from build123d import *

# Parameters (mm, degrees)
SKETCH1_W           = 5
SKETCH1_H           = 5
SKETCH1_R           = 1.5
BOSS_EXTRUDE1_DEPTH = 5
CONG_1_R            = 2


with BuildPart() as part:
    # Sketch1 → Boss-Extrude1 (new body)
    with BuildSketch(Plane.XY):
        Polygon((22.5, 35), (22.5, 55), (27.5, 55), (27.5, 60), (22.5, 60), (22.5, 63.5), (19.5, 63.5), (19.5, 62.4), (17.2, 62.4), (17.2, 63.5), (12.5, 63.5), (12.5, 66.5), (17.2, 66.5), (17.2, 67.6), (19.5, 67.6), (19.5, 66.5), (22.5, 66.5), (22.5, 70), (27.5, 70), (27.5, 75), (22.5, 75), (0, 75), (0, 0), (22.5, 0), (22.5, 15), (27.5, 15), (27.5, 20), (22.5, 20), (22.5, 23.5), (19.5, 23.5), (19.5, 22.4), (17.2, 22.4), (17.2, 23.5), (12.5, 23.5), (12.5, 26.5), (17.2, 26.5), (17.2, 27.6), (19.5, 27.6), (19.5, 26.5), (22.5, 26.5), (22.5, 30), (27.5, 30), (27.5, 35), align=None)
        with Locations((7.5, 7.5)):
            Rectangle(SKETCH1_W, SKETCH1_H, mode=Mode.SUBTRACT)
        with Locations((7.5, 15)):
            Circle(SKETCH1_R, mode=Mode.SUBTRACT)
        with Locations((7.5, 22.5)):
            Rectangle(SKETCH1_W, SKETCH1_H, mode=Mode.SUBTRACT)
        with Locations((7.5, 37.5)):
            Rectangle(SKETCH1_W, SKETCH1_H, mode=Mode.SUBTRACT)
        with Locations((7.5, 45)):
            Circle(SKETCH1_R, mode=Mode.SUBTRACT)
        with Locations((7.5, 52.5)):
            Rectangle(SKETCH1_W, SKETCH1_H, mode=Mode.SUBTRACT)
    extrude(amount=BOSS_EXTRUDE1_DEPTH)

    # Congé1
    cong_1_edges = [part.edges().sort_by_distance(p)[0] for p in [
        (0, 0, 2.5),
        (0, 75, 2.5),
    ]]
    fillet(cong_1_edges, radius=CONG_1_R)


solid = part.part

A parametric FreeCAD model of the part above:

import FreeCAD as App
import Part
import Sketcher

V = App.Vector
Q = App.Units.Quantity


def edges_at(feature, points):
    """Names of the edges that pass closest to the given points."""
    edges = feature.Shape.Edges
    near = lambda p: min(range(len(edges)), key=lambda i: edges[i].distToShape(Part.Vertex(*p))[0])
    return sorted({f"Edge{near(p) + 1}" for p in points})

doc = App.newDocument("Part")
body = doc.addObject("PartDesign::Body", "Body")

sketch1 = body.newObject("Sketcher::SketchObject", "Sketch")
sketch1.AttachmentSupport = (doc.getObject("XY_Plane"), [""])
sketch1.MapMode = "FlatFace"
sketch1.addGeometry(Part.LineSegment(V(22.5, 35, 0), V(22.5, 55, 0)), False)
sketch1.addGeometry(Part.LineSegment(V(22.5, 55, 0), V(27.5, 55, 0)), False)
sketch1.addGeometry(Part.LineSegment(V(27.5, 55, 0), V(27.5, 60, 0)), False)
sketch1.addGeometry(Part.LineSegment(V(27.5, 60, 0), V(22.5, 60, 0)), False)
sketch1.addGeometry(Part.LineSegment(V(22.5, 60, 0), V(22.5, 63.5, 0)), False)
sketch1.addGeometry(Part.LineSegment(V(22.5, 63.5, 0), V(19.5, 63.5, 0)), False)
sketch1.addGeometry(Part.LineSegment(V(19.5, 63.5, 0), V(19.5, 62.4, 0)), False)
sketch1.addGeometry(Part.LineSegment(V(19.5, 62.4, 0), V(17.2, 62.4, 0)), False)
sketch1.addGeometry(Part.LineSegment(V(17.2, 62.4, 0), V(17.2, 63.5, 0)), False)
sketch1.addGeometry(Part.LineSegment(V(17.2, 63.5, 0), V(12.5, 63.5, 0)), False)
sketch1.addGeometry(Part.LineSegment(V(12.5, 63.5, 0), V(12.5, 66.5, 0)), False)
sketch1.addGeometry(Part.LineSegment(V(12.5, 66.5, 0), V(17.2, 66.5, 0)), False)
sketch1.addGeometry(Part.LineSegment(V(17.2, 66.5, 0), V(17.2, 67.6, 0)), False)
sketch1.addGeometry(Part.LineSegment(V(17.2, 67.6, 0), V(19.5, 67.6, 0)), False)
sketch1.addGeometry(Part.LineSegment(V(19.5, 67.6, 0), V(19.5, 66.5, 0)), False)
sketch1.addGeometry(Part.LineSegment(V(19.5, 66.5, 0), V(22.5, 66.5, 0)), False)
sketch1.addGeometry(Part.LineSegment(V(22.5, 66.5, 0), V(22.5, 70, 0)), False)
sketch1.addGeometry(Part.LineSegment(V(22.5, 70, 0), V(27.5, 70, 0)), False)
sketch1.addGeometry(Part.LineSegment(V(27.5, 70, 0), V(27.5, 75, 0)), False)
sketch1.addGeometry(Part.LineSegment(V(27.5, 75, 0), V(0, 75, 0)), False)
sketch1.addGeometry(Part.LineSegment(V(0, 75, 0), V(0, 0, 0)), False)
sketch1.addGeometry(Part.LineSegment(V(0, 0, 0), V(22.5, 0, 0)), False)
sketch1.addGeometry(Part.LineSegment(V(22.5, 0, 0), V(22.5, 15, 0)), False)
sketch1.addGeometry(Part.LineSegment(V(22.5, 15, 0), V(27.5, 15, 0)), False)
sketch1.addGeometry(Part.LineSegment(V(27.5, 15, 0), V(27.5, 20, 0)), False)
sketch1.addGeometry(Part.LineSegment(V(27.5, 20, 0), V(22.5, 20, 0)), False)
sketch1.addGeometry(Part.LineSegment(V(22.5, 20, 0), V(22.5, 23.5, 0)), False)
sketch1.addGeometry(Part.LineSegment(V(22.5, 23.5, 0), V(19.5, 23.5, 0)), False)
sketch1.addGeometry(Part.LineSegment(V(19.5, 23.5, 0), V(19.5, 22.4, 0)), False)
sketch1.addGeometry(Part.LineSegment(V(19.5, 22.4, 0), V(17.2, 22.4, 0)), False)
sketch1.addGeometry(Part.LineSegment(V(17.2, 22.4, 0), V(17.2, 23.5, 0)), False)
sketch1.addGeometry(Part.LineSegment(V(17.2, 23.5, 0), V(12.5, 23.5, 0)), False)
sketch1.addGeometry(Part.LineSegment(V(12.5, 23.5, 0), V(12.5, 26.5, 0)), False)
sketch1.addGeometry(Part.LineSegment(V(12.5, 26.5, 0), V(17.2, 26.5, 0)), False)
sketch1.addGeometry(Part.LineSegment(V(17.2, 26.5, 0), V(17.2, 27.6, 0)), False)
sketch1.addGeometry(Part.LineSegment(V(17.2, 27.6, 0), V(19.5, 27.6, 0)), False)
sketch1.addGeometry(Part.LineSegment(V(19.5, 27.6, 0), V(19.5, 26.5, 0)), False)
sketch1.addGeometry(Part.LineSegment(V(19.5, 26.5, 0), V(22.5, 26.5, 0)), False)
sketch1.addGeometry(Part.LineSegment(V(22.5, 26.5, 0), V(22.5, 30, 0)), False)
sketch1.addGeometry(Part.LineSegment(V(22.5, 30, 0), V(27.5, 30, 0)), False)
sketch1.addGeometry(Part.LineSegment(V(27.5, 30, 0), V(27.5, 35, 0)), False)
sketch1.addGeometry(Part.LineSegment(V(27.5, 35, 0), V(22.5, 35, 0)), False)
sketch1.addGeometry(Part.LineSegment(V(10, 5, 0), V(5, 5, 0)), False)
sketch1.addGeometry(Part.LineSegment(V(5, 5, 0), V(5, 10, 0)), False)
sketch1.addGeometry(Part.LineSegment(V(5, 10, 0), V(10, 10, 0)), False)
sketch1.addGeometry(Part.LineSegment(V(10, 10, 0), V(10, 5, 0)), False)
sketch1.addGeometry(Part.Circle(V(7.5, 15, 0), V(0, 0, 1), 1.5), False)
sketch1.addGeometry(Part.LineSegment(V(10, 20, 0), V(5, 20, 0)), False)
sketch1.addGeometry(Part.LineSegment(V(5, 20, 0), V(5, 25, 0)), False)
sketch1.addGeometry(Part.LineSegment(V(5, 25, 0), V(10, 25, 0)), False)
sketch1.addGeometry(Part.LineSegment(V(10, 25, 0), V(10, 20, 0)), False)
sketch1.addGeometry(Part.LineSegment(V(10, 35, 0), V(5, 35, 0)), False)
sketch1.addGeometry(Part.LineSegment(V(5, 35, 0), V(5, 40, 0)), False)
sketch1.addGeometry(Part.LineSegment(V(5, 40, 0), V(10, 40, 0)), False)
sketch1.addGeometry(Part.LineSegment(V(10, 40, 0), V(10, 35, 0)), False)
sketch1.addGeometry(Part.Circle(V(7.5, 45, 0), V(0, 0, 1), 1.5), False)
sketch1.addGeometry(Part.LineSegment(V(10, 50, 0), V(5, 50, 0)), False)
sketch1.addGeometry(Part.LineSegment(V(5, 50, 0), V(5, 55, 0)), False)
sketch1.addGeometry(Part.LineSegment(V(5, 55, 0), V(10, 55, 0)), False)
sketch1.addGeometry(Part.LineSegment(V(10, 55, 0), V(10, 50, 0)), False)
sketch1.addConstraint(Sketcher.Constraint("Coincident", 0, 2, 1, 1))
sketch1.addConstraint(Sketcher.Constraint("Coincident", 1, 2, 2, 1))
sketch1.addConstraint(Sketcher.Constraint("Coincident", 2, 2, 3, 1))
sketch1.addConstraint(Sketcher.Constraint("Coincident", 3, 2, 4, 1))
sketch1.addConstraint(Sketcher.Constraint("Coincident", 4, 2, 5, 1))
sketch1.addConstraint(Sketcher.Constraint("Coincident", 5, 2, 6, 1))
sketch1.addConstraint(Sketcher.Constraint("Coincident", 6, 2, 7, 1))
sketch1.addConstraint(Sketcher.Constraint("Coincident", 7, 2, 8, 1))
sketch1.addConstraint(Sketcher.Constraint("Coincident", 8, 2, 9, 1))
sketch1.addConstraint(Sketcher.Constraint("Coincident", 9, 2, 10, 1))
sketch1.addConstraint(Sketcher.Constraint("Coincident", 10, 2, 11, 1))
sketch1.addConstraint(Sketcher.Constraint("Coincident", 11, 2, 12, 1))
sketch1.addConstraint(Sketcher.Constraint("Coincident", 12, 2, 13, 1))
sketch1.addConstraint(Sketcher.Constraint("Coincident", 13, 2, 14, 1))
sketch1.addConstraint(Sketcher.Constraint("Coincident", 14, 2, 15, 1))
sketch1.addConstraint(Sketcher.Constraint("Coincident", 15, 2, 16, 1))
sketch1.addConstraint(Sketcher.Constraint("Coincident", 16, 2, 17, 1))
sketch1.addConstraint(Sketcher.Constraint("Coincident", 17, 2, 18, 1))
sketch1.addConstraint(Sketcher.Constraint("Coincident", 18, 2, 19, 1))
sketch1.addConstraint(Sketcher.Constraint("Coincident", 19, 2, 20, 1))
sketch1.addConstraint(Sketcher.Constraint("Coincident", 20, 2, 21, 1))
sketch1.addConstraint(Sketcher.Constraint("Coincident", 21, 2, 22, 1))
sketch1.addConstraint(Sketcher.Constraint("Coincident", 22, 2, 23, 1))
sketch1.addConstraint(Sketcher.Constraint("Coincident", 23, 2, 24, 1))
sketch1.addConstraint(Sketcher.Constraint("Coincident", 24, 2, 25, 1))
sketch1.addConstraint(Sketcher.Constraint("Coincident", 25, 2, 26, 1))
sketch1.addConstraint(Sketcher.Constraint("Coincident", 26, 2, 27, 1))
sketch1.addConstraint(Sketcher.Constraint("Coincident", 27, 2, 28, 1))
sketch1.addConstraint(Sketcher.Constraint("Coincident", 28, 2, 29, 1))
sketch1.addConstraint(Sketcher.Constraint("Coincident", 29, 2, 30, 1))
sketch1.addConstraint(Sketcher.Constraint("Coincident", 30, 2, 31, 1))
sketch1.addConstraint(Sketcher.Constraint("Coincident", 31, 2, 32, 1))
sketch1.addConstraint(Sketcher.Constraint("Coincident", 32, 2, 33, 1))
sketch1.addConstraint(Sketcher.Constraint("Coincident", 33, 2, 34, 1))
sketch1.addConstraint(Sketcher.Constraint("Coincident", 34, 2, 35, 1))
sketch1.addConstraint(Sketcher.Constraint("Coincident", 35, 2, 36, 1))
sketch1.addConstraint(Sketcher.Constraint("Coincident", 36, 2, 37, 1))
sketch1.addConstraint(Sketcher.Constraint("Coincident", 37, 2, 38, 1))
sketch1.addConstraint(Sketcher.Constraint("Coincident", 38, 2, 39, 1))
sketch1.addConstraint(Sketcher.Constraint("Coincident", 39, 2, 40, 1))
sketch1.addConstraint(Sketcher.Constraint("Coincident", 40, 2, 41, 1))
sketch1.addConstraint(Sketcher.Constraint("Coincident", 41, 2, 0, 1))
sketch1.addConstraint(Sketcher.Constraint("Coincident", 42, 2, 43, 1))
sketch1.addConstraint(Sketcher.Constraint("Coincident", 43, 2, 44, 1))
sketch1.addConstraint(Sketcher.Constraint("Coincident", 44, 2, 45, 1))
sketch1.addConstraint(Sketcher.Constraint("Coincident", 45, 2, 42, 1))
sketch1.addConstraint(Sketcher.Constraint("Coincident", 47, 2, 48, 1))
sketch1.addConstraint(Sketcher.Constraint("Coincident", 48, 2, 49, 1))
sketch1.addConstraint(Sketcher.Constraint("Coincident", 49, 2, 50, 1))
sketch1.addConstraint(Sketcher.Constraint("Coincident", 50, 2, 47, 1))
sketch1.addConstraint(Sketcher.Constraint("Coincident", 51, 2, 52, 1))
sketch1.addConstraint(Sketcher.Constraint("Coincident", 52, 2, 53, 1))
sketch1.addConstraint(Sketcher.Constraint("Coincident", 53, 2, 54, 1))
sketch1.addConstraint(Sketcher.Constraint("Coincident", 54, 2, 51, 1))
sketch1.addConstraint(Sketcher.Constraint("Coincident", 56, 2, 57, 1))
sketch1.addConstraint(Sketcher.Constraint("Coincident", 57, 2, 58, 1))
sketch1.addConstraint(Sketcher.Constraint("Coincident", 58, 2, 59, 1))
sketch1.addConstraint(Sketcher.Constraint("Coincident", 59, 2, 56, 1))
sketch1.addConstraint(Sketcher.Constraint("Vertical", 0))
sketch1.addConstraint(Sketcher.Constraint("Horizontal", 1))
sketch1.addConstraint(Sketcher.Constraint("Vertical", 2))
sketch1.addConstraint(Sketcher.Constraint("Horizontal", 3))
sketch1.addConstraint(Sketcher.Constraint("Vertical", 4))
sketch1.addConstraint(Sketcher.Constraint("Horizontal", 5))
sketch1.addConstraint(Sketcher.Constraint("Vertical", 6))
sketch1.addConstraint(Sketcher.Constraint("Horizontal", 7))
sketch1.addConstraint(Sketcher.Constraint("Vertical", 8))
sketch1.addConstraint(Sketcher.Constraint("Horizontal", 9))
sketch1.addConstraint(Sketcher.Constraint("Vertical", 10))
sketch1.addConstraint(Sketcher.Constraint("Horizontal", 11))
sketch1.addConstraint(Sketcher.Constraint("Vertical", 12))
sketch1.addConstraint(Sketcher.Constraint("Horizontal", 13))
sketch1.addConstraint(Sketcher.Constraint("Vertical", 14))
sketch1.addConstraint(Sketcher.Constraint("Horizontal", 15))
sketch1.addConstraint(Sketcher.Constraint("Vertical", 16))
sketch1.addConstraint(Sketcher.Constraint("Horizontal", 17))
sketch1.addConstraint(Sketcher.Constraint("Vertical", 18))
sketch1.addConstraint(Sketcher.Constraint("Horizontal", 19))
sketch1.addConstraint(Sketcher.Constraint("Vertical", 20))
sketch1.addConstraint(Sketcher.Constraint("Horizontal", 21))
sketch1.addConstraint(Sketcher.Constraint("Vertical", 22))
sketch1.addConstraint(Sketcher.Constraint("Horizontal", 23))
sketch1.addConstraint(Sketcher.Constraint("Vertical", 24))
sketch1.addConstraint(Sketcher.Constraint("Horizontal", 25))
sketch1.addConstraint(Sketcher.Constraint("Vertical", 26))
sketch1.addConstraint(Sketcher.Constraint("Horizontal", 27))
sketch1.addConstraint(Sketcher.Constraint("Vertical", 28))
sketch1.addConstraint(Sketcher.Constraint("Horizontal", 29))
sketch1.addConstraint(Sketcher.Constraint("Vertical", 30))
sketch1.addConstraint(Sketcher.Constraint("Horizontal", 31))
sketch1.addConstraint(Sketcher.Constraint("Vertical", 32))
sketch1.addConstraint(Sketcher.Constraint("Horizontal", 33))
sketch1.addConstraint(Sketcher.Constraint("Vertical", 34))
sketch1.addConstraint(Sketcher.Constraint("Horizontal", 35))
sketch1.addConstraint(Sketcher.Constraint("Vertical", 36))
sketch1.addConstraint(Sketcher.Constraint("Horizontal", 37))
sketch1.addConstraint(Sketcher.Constraint("Vertical", 38))
sketch1.addConstraint(Sketcher.Constraint("Horizontal", 39))
sketch1.addConstraint(Sketcher.Constraint("Vertical", 40))
sketch1.addConstraint(Sketcher.Constraint("Horizontal", 41))
sketch1.addConstraint(Sketcher.Constraint("Horizontal", 42))
sketch1.addConstraint(Sketcher.Constraint("Vertical", 43))
sketch1.addConstraint(Sketcher.Constraint("Horizontal", 44))
sketch1.addConstraint(Sketcher.Constraint("Vertical", 45))
sketch1.addConstraint(Sketcher.Constraint("Horizontal", 47))
sketch1.addConstraint(Sketcher.Constraint("Vertical", 48))
sketch1.addConstraint(Sketcher.Constraint("Horizontal", 49))
sketch1.addConstraint(Sketcher.Constraint("Vertical", 50))
sketch1.addConstraint(Sketcher.Constraint("Horizontal", 51))
sketch1.addConstraint(Sketcher.Constraint("Vertical", 52))
sketch1.addConstraint(Sketcher.Constraint("Horizontal", 53))
sketch1.addConstraint(Sketcher.Constraint("Vertical", 54))
sketch1.addConstraint(Sketcher.Constraint("Horizontal", 56))
sketch1.addConstraint(Sketcher.Constraint("Vertical", 57))
sketch1.addConstraint(Sketcher.Constraint("Horizontal", 58))
sketch1.addConstraint(Sketcher.Constraint("Vertical", 59))
sketch1.addConstraint(Sketcher.Constraint("Coincident", 20, 2, -1, 1))
sketch1.addConstraint(Sketcher.Constraint("Equal", 46, 55))
sketch1.addConstraint(Sketcher.Constraint("Horizontal", 5, 2, 8, 2))
sketch1.addConstraint(Sketcher.Constraint("Horizontal", 11, 2, 14, 2))
sketch1.addConstraint(Sketcher.Constraint("Horizontal", 46, 3, 22, 2))
sketch1.addConstraint(Sketcher.Constraint("Horizontal", 27, 2, 30, 2))
sketch1.addConstraint(Sketcher.Constraint("Horizontal", 33, 2, 36, 2))
sketch1.addConstraint(Sketcher.Constraint("Horizontal", 25, 2, 47, 2))
sketch1.addConstraint(Sketcher.Constraint("Horizontal", 41, 2, 51, 2))
sketch1.addConstraint(Sketcher.Constraint("Horizontal", 1, 2, 57, 2))
sketch1.addConstraint(Sketcher.Constraint("Vertical", 46, 3, 55, 3))
sketch1.addConstraint(Sketcher.Constraint("Vertical", 0, 2, 3, 2))
sketch1.addConstraint(Sketcher.Constraint("Vertical", 8, 2, 11, 2))
sketch1.addConstraint(Sketcher.Constraint("Vertical", 6, 2, 13, 2))
sketch1.addConstraint(Sketcher.Constraint("Vertical", 4, 2, 15, 2))
sketch1.addConstraint(Sketcher.Constraint("Vertical", 2, 2, 17, 2))
sketch1.addConstraint(Sketcher.Constraint("Vertical", 16, 2, 21, 2))
sketch1.addConstraint(Sketcher.Constraint("Vertical", 18, 2, 23, 2))
sketch1.addConstraint(Sketcher.Constraint("Vertical", 22, 2, 25, 2))
sketch1.addConstraint(Sketcher.Constraint("Vertical", 14, 2, 27, 2))
sketch1.addConstraint(Sketcher.Constraint("Vertical", 12, 2, 29, 2))
sketch1.addConstraint(Sketcher.Constraint("Vertical", 10, 2, 31, 2))
sketch1.addConstraint(Sketcher.Constraint("Vertical", 30, 2, 33, 2))
sketch1.addConstraint(Sketcher.Constraint("Vertical", 28, 2, 35, 2))
sketch1.addConstraint(Sketcher.Constraint("Vertical", 26, 2, 37, 2))
sketch1.addConstraint(Sketcher.Constraint("Vertical", 24, 2, 39, 2))
sketch1.addConstraint(Sketcher.Constraint("Vertical", 43, 2, 47, 2))
sketch1.addConstraint(Sketcher.Constraint("Vertical", 45, 2, 49, 2))
sketch1.addConstraint(Sketcher.Constraint("Vertical", 48, 2, 51, 2))
sketch1.addConstraint(Sketcher.Constraint("Vertical", 50, 2, 53, 2))
sketch1.addConstraint(Sketcher.Constraint("Vertical", 52, 2, 56, 2))
sketch1.addConstraint(Sketcher.Constraint("Vertical", 54, 2, 58, 2))
sketch1.addConstraint(Sketcher.Constraint("Equal", 41, 42))
sketch1.addConstraint(Sketcher.Constraint("Equal", 58, 2))
sketch1.addConstraint(Sketcher.Constraint("Equal", 37, 10))
sketch1.addConstraint(Sketcher.Constraint("Equal", 8, 12))
sketch1.addConstraint(Sketcher.Constraint("Equal", 4, 16))
sketch1.addConstraint(Sketcher.Constraint("Equal", 2, 18))
sketch1.addConstraint(Sketcher.Constraint("Equal", 18, 24))
sketch1.addConstraint(Sketcher.Constraint("Equal", 16, 26))
sketch1.addConstraint(Sketcher.Constraint("Equal", 14, 28))
sketch1.addConstraint(Sketcher.Constraint("Equal", 10, 32))
sketch1.addConstraint(Sketcher.Constraint("Equal", 30, 34))
sketch1.addConstraint(Sketcher.Constraint("Equal", 26, 38))
sketch1.addConstraint(Sketcher.Constraint("Equal", 24, 40))
sketch1.addConstraint(Sketcher.Constraint("Equal", 40, 43))
sketch1.addConstraint(Sketcher.Constraint("Equal", 45, 48))
sketch1.addConstraint(Sketcher.Constraint("Equal", 50, 52))
sketch1.addConstraint(Sketcher.Constraint("Equal", 54, 57))
sketch1.addConstraint(Sketcher.Constraint("Diameter", 46, Q("3 mm")))
sketch1.addConstraint(Sketcher.Constraint("DistanceX", 1, 1, 1, 2, Q("5 mm")))
sketch1.addConstraint(Sketcher.Constraint("DistanceX", 5, 2, 5, 1, Q("3 mm")))
sketch1.addConstraint(Sketcher.Constraint("DistanceY", 0, 1, 0, 2, Q("20 mm")))
sketch1.addConstraint(Sketcher.Constraint("DistanceY", 20, 2, 20, 1, Q("75 mm")))
sketch1.addConstraint(Sketcher.Constraint("DistanceY", 22, 1, 22, 2, Q("15 mm")))
sketch1.addConstraint(Sketcher.Constraint("DistanceX", 7, 2, 7, 1, Q("2.3 mm")))
sketch1.addConstraint(Sketcher.Constraint("DistanceX", 9, 2, 9, 1, Q("4.7 mm")))
sketch1.addConstraint(Sketcher.Constraint("DistanceX", 19, 2, 19, 1, Q("27.5 mm")))
sketch1.addConstraint(Sketcher.Constraint("DistanceY", 6, 2, 6, 1, Q("1.1 mm")))
sketch1.addConstraint(Sketcher.Constraint("DistanceY", -1, 1, 55, 3, Q("45 mm")))
sketch1.addConstraint(Sketcher.Constraint("DistanceX", -1, 1, 42, 2, Q("5 mm")))
sketch1.addConstraint(Sketcher.Constraint("DistanceY", -1, 1, 42, 2, Q("5 mm")))
sketch1.addConstraint(Sketcher.Constraint("DistanceX", 55, 3, 0, 2, Q("15 mm")))
pad1 = body.newObject("PartDesign::Pad", "Pad")
pad1.Profile = sketch1
pad1.Length = 5
doc.recompute()

fillet = body.newObject("PartDesign::Fillet", "Fillet")
fillet.Base = (pad1, edges_at(pad1, [(0, 0, 2.5), (0, 75, 2.5)]))
fillet.Radius = 2

doc.recompute()
